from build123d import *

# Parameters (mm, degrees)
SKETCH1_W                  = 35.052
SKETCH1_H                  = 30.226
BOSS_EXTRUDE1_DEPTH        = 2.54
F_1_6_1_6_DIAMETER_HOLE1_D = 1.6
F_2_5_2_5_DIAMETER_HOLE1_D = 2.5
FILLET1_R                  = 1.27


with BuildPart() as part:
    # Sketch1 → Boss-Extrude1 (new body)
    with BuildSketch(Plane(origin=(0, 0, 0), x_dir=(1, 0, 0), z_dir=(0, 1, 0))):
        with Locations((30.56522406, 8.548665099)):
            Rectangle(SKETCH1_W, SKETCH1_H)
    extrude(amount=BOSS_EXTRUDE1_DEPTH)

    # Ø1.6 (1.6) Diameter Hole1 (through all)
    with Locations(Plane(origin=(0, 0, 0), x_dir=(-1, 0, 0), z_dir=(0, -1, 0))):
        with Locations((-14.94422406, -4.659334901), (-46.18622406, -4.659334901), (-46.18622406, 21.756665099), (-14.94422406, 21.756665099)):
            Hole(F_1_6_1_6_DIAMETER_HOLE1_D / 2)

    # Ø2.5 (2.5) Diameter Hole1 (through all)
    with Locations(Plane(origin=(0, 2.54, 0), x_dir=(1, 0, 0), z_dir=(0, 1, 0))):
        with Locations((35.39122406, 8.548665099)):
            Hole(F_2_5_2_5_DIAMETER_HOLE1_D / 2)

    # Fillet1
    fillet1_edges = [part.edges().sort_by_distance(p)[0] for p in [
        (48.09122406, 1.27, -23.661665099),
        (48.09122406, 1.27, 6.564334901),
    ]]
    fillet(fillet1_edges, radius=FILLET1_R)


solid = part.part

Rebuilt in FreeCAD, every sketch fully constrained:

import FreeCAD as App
import Part
import Sketcher

V = App.Vector
Q = App.Units.Quantity


def edges_at(feature, points):
    """Names of the edges that pass closest to the given points."""
    edges = feature.Shape.Edges
    near = lambda p: min(range(len(edges)), key=lambda i: edges[i].distToShape(Part.Vertex(*p))[0])
    return sorted({f"Edge{near(p) + 1}" for p in points})


def add_polygon(sketch, points):
    """Adds a closed chain of lines whose ends are joined by coincident constraints."""
    first, n = sketch.GeometryCount, len(points)
    for a, b in zip(points, points[1:] + points[:1]):
        sketch.addGeometry(Part.LineSegment(App.Vector(*a, 0), App.Vector(*b, 0)), False)
    for i in range(n):
        sketch.addConstraint(Sketcher.Constraint("Coincident", first + i, 2, first + (i + 1) % n, 1))

doc = App.newDocument("Part")
body = doc.addObject("PartDesign::Body", "Body")

sketch1 = body.newObject("Sketcher::SketchObject", "Sketch")
sketch1.AttachmentSupport = (doc.getObject("XZ_Plane"), [""])
sketch1.MapMode = "FlatFace"
add_polygon(sketch1, [(13.039224, -23.661665), (13.039224, 6.564335), (48.091224, 6.564335), (48.091224, -23.661665)])
sketch1.addConstraint(Sketcher.Constraint("Vertical", 0))
sketch1.addConstraint(Sketcher.Constraint("Horizontal", 1))
sketch1.addConstraint(Sketcher.Constraint("Vertical", 2))
sketch1.addConstraint(Sketcher.Constraint("Horizontal", 3))
sketch1.addConstraint(Sketcher.Constraint("DistanceX", 1, 1, 1, 2, Q("1.38 in")))
sketch1.addConstraint(Sketcher.Constraint("DistanceY", 0, 1, 0, 2, Q("1.19 in")))
sketch1.addConstraint(Sketcher.Constraint("DistanceX", -1, 1, 0, 2, Q("13.039224 mm")))
sketch1.addConstraint(Sketcher.Constraint("DistanceY", -1, 1, 0, 2, Q("6.564335 mm")))
pad1 = body.newObject("PartDesign::Pad", "Pad")
pad1.Profile = sketch1
pad1.Length = Q("0.1 in")
pad1.Reversed = True

sketch2 = body.newObject("Sketcher::SketchObject", "Sketch001")
sketch2.AttachmentSupport = (doc.getObject("XZ_Plane"), [""])
sketch2.MapMode = "FlatFace"
sketch2.addGeometry(Part.Circle(V(14.944224, 4.659335, 0), V(0, 0, 1), 0.8), False)
sketch2.addGeometry(Part.Circle(V(46.186224, 4.659335, 0), V(0, 0, 1), 0.8), False)
sketch2.addGeometry(Part.Circle(V(46.186224, -21.756665, 0), V(0, 0, 1), 0.8), False)
sketch2.addGeometry(Part.Circle(V(14.944224, -21.756665, 0), V(0, 0, 1), 0.8), False)
sketch2.addConstraint(Sketcher.Constraint("Equal", 0, 1))
sketch2.addConstraint(Sketcher.Constraint("Equal", 1, 2))
sketch2.addConstraint(Sketcher.Constraint("Equal", 2, 3))
sketch2.addConstraint(Sketcher.Constraint("Horizontal", 0, 3, 1, 3))
sketch2.addConstraint(Sketcher.Constraint("Horizontal", 2, 3, 3, 3))
sketch2.addConstraint(Sketcher.Constraint("Vertical", 1, 3, 2, 3))
sketch2.addConstraint(Sketcher.Constraint("Vertical", 0, 3, 3, 3))
sketch2.addConstraint(Sketcher.Constraint("Diameter", 0, Q("1.6 mm")))
sketch2.addConstraint(Sketcher.Constraint("DistanceX", 0, 3, 1, 3, Q("1.23 in")))
sketch2.addConstraint(Sketcher.Constraint("DistanceY", 2, 3, 1, 3, Q("1.04 in")))
sketch2.addConstraint(Sketcher.Constraint("DistanceX", -1, 1, 0, 3, Q("14.944224 mm")))
sketch2.addConstraint(Sketcher.Constraint("DistanceY", -1, 1, 0, 3, Q("4.659335 mm")))
doc.recompute()
hole = body.newObject("PartDesign::Hole", "Hole")
hole.Profile = sketch2
hole.ThreadType = "None"
hole.Diameter = 1.6
hole.DepthType = "ThroughAll"

sketch3 = body.newObject("Sketcher::SketchObject", "Sketch002")
sketch3.AttachmentSupport = (doc.getObject("XZ_Plane"), [""])
sketch3.MapMode = "FlatFace"
sketch3.AttachmentOffset = App.Placement(V(0, 0, -0.1 * 25.4), App.Rotation())
sketch3.addGeometry(Part.Circle(V(35.391224, -8.548665, 0), V(0, 0, 1), 1.25), False)
sketch3.addConstraint(Sketcher.Constraint("Diameter", 0, Q("2.5 mm")))
sketch3.addConstraint(Sketcher.Constraint("DistanceX", -1, 1, 0, 3, Q("35.391224 mm")))
sketch3.addConstraint(Sketcher.Constraint("DistanceY", 0, 3, -1, 1, Q("8.548665 mm")))
doc.recompute()
hole2 = body.newObject("PartDesign::Hole", "Hole001")
hole2.Profile = sketch3
hole2.ThreadType = "None"
hole2.Diameter = 2.5
hole2.DepthType = "ThroughAll"
hole2.Reversed = True
doc.recompute()

fillet = body.newObject("PartDesign::Fillet", "Fillet")
fillet.Base = (hole2, edges_at(hole2, [(48.091, 1.27, -23.662), (48.091, 1.27, 6.564)]))
fillet.Radius = Q("0.05 in")

doc.recompute()
